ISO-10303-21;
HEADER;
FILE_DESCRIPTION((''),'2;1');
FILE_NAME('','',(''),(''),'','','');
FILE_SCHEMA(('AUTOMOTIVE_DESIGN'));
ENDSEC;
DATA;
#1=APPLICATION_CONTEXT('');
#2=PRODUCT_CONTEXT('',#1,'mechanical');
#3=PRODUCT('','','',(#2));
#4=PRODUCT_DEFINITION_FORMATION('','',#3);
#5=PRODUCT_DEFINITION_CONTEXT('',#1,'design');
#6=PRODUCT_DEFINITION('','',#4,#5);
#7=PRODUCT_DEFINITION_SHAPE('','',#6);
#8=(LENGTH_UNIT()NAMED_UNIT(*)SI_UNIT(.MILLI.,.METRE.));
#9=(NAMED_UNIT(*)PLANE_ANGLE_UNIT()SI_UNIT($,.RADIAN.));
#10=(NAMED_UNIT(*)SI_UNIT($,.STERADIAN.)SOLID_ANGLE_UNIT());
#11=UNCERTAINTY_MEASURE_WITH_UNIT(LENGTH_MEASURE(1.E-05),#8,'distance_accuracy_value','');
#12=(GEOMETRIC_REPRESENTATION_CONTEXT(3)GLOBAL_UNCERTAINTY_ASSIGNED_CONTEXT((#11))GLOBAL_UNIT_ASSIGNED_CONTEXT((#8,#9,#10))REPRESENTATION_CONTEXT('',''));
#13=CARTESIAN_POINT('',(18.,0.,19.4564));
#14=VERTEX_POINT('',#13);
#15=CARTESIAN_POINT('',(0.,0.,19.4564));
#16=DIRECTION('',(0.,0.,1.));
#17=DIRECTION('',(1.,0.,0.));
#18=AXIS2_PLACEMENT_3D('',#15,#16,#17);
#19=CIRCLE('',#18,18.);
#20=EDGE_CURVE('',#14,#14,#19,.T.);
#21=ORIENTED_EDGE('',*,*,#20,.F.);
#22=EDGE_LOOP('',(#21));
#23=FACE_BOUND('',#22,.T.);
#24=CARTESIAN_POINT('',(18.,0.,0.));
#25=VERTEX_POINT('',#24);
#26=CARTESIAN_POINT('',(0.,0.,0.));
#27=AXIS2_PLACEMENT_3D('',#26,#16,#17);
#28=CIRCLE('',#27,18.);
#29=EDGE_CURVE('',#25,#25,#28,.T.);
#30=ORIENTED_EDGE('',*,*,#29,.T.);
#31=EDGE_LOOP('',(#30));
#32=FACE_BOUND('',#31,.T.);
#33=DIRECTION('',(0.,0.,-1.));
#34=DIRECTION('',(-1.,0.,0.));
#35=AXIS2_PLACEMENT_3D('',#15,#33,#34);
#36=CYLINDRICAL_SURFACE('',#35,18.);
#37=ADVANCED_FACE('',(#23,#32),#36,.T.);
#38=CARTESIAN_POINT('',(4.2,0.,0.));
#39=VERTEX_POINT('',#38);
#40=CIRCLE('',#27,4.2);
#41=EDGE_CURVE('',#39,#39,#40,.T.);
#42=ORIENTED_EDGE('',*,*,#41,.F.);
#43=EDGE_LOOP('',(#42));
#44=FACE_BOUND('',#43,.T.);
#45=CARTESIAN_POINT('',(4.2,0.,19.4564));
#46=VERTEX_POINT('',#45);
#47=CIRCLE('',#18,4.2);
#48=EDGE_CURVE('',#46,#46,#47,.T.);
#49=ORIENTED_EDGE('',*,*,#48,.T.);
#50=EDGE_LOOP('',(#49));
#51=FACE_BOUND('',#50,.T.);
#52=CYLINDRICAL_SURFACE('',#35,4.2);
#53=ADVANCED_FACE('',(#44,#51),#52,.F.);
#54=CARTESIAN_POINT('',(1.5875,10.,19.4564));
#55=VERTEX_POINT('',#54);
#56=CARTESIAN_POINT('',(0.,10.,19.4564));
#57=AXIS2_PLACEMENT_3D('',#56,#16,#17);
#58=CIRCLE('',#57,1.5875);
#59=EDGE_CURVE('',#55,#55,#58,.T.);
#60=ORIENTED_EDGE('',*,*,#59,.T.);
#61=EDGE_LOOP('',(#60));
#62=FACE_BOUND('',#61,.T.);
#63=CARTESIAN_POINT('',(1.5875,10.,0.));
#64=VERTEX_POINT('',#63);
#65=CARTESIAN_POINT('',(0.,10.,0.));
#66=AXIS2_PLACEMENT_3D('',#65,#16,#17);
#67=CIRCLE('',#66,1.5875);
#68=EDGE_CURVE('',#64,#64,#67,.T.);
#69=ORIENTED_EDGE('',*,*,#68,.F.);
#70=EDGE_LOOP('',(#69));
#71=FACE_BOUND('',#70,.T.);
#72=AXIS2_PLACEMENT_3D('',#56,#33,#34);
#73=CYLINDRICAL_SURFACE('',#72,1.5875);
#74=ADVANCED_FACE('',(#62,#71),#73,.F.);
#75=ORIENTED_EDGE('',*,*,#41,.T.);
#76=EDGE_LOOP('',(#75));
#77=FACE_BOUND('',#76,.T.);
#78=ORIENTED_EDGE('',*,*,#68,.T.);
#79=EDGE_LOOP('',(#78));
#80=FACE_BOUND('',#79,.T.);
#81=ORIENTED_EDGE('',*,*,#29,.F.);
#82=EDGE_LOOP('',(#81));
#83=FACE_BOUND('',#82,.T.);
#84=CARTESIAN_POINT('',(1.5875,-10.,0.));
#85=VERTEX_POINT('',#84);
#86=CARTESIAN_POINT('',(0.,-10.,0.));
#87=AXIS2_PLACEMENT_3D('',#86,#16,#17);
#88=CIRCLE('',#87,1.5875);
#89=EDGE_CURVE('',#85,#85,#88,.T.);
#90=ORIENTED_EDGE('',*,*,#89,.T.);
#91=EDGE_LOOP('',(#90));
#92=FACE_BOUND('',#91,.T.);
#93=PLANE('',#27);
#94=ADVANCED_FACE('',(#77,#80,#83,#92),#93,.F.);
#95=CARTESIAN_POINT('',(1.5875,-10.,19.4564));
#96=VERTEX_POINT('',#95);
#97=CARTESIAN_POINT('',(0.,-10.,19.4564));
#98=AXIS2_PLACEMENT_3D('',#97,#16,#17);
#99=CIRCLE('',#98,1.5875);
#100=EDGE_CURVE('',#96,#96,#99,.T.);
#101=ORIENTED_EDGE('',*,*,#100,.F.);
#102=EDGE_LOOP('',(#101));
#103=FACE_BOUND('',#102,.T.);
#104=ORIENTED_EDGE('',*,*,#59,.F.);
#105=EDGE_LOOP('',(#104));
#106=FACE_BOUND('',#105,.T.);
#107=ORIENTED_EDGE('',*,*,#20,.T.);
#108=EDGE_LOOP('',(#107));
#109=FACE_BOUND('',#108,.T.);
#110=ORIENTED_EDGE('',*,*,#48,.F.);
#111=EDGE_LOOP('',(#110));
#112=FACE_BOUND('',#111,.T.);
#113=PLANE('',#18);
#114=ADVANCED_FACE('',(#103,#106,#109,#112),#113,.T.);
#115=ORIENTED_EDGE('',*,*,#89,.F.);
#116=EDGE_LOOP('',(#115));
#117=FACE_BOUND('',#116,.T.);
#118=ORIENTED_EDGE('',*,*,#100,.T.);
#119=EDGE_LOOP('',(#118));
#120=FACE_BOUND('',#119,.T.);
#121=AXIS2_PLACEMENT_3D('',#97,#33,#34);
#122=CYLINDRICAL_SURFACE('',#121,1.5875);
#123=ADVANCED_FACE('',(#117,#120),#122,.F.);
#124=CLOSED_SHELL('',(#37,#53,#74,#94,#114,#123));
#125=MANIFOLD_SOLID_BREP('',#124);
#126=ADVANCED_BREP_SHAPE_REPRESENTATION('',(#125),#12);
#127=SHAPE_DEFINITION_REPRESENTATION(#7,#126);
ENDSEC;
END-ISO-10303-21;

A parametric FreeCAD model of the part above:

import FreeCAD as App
import Part
import Sketcher
from FreeCAD import Vector
Q = App.Units.Quantity

doc = App.newDocument("Part")
body = doc.addObject("PartDesign::Body", "Body")

# Sketch on XY plane
sketch1 = body.newObject("Sketcher::SketchObject", "Sketch")
sketch1.AttachmentSupport = (doc.getObject("XY_Plane"), [""])
sketch1.MapMode = "FlatFace"
sketch1.addGeometry([
    Part.Circle(Vector(0, 0, 0), Vector(0, 0, 1), 18),
    Part.Circle(Vector(0, -10, 0), Vector(0, 0, 1), 1.6),
    Part.Circle(Vector(0, 0, 0), Vector(0, 0, 1), 4.2),
    Part.Circle(Vector(0, 10, 0), Vector(0, 0, 1), 1.6),
], False)
sketch1.addConstraint([
    Sketcher.Constraint("Coincident", 0, 3, -1, 1),
    Sketcher.Constraint("Coincident", 2, 3, -1, 1),
    Sketcher.Constraint("Equal", 1, 3),
    Sketcher.Constraint("Symmetric", 1, 3, 3, 3, -1, 1),
    Sketcher.Constraint("PointOnObject", 1, 3, -2),
    Sketcher.Constraint("Diameter", 0, Q("36 mm")),
    Sketcher.Constraint("Diameter", 2, Q("8.4 mm")),
    Sketcher.Constraint("Diameter", 1, Q("3.175 mm")),
    Sketcher.Constraint("DistanceY", 1, 3, -1, 1, Q("10 mm")),
])
pad1 = body.newObject("PartDesign::Pad", "Pad")
pad1.Profile = sketch1
pad1.Length = 19.4564

doc.recompute()
